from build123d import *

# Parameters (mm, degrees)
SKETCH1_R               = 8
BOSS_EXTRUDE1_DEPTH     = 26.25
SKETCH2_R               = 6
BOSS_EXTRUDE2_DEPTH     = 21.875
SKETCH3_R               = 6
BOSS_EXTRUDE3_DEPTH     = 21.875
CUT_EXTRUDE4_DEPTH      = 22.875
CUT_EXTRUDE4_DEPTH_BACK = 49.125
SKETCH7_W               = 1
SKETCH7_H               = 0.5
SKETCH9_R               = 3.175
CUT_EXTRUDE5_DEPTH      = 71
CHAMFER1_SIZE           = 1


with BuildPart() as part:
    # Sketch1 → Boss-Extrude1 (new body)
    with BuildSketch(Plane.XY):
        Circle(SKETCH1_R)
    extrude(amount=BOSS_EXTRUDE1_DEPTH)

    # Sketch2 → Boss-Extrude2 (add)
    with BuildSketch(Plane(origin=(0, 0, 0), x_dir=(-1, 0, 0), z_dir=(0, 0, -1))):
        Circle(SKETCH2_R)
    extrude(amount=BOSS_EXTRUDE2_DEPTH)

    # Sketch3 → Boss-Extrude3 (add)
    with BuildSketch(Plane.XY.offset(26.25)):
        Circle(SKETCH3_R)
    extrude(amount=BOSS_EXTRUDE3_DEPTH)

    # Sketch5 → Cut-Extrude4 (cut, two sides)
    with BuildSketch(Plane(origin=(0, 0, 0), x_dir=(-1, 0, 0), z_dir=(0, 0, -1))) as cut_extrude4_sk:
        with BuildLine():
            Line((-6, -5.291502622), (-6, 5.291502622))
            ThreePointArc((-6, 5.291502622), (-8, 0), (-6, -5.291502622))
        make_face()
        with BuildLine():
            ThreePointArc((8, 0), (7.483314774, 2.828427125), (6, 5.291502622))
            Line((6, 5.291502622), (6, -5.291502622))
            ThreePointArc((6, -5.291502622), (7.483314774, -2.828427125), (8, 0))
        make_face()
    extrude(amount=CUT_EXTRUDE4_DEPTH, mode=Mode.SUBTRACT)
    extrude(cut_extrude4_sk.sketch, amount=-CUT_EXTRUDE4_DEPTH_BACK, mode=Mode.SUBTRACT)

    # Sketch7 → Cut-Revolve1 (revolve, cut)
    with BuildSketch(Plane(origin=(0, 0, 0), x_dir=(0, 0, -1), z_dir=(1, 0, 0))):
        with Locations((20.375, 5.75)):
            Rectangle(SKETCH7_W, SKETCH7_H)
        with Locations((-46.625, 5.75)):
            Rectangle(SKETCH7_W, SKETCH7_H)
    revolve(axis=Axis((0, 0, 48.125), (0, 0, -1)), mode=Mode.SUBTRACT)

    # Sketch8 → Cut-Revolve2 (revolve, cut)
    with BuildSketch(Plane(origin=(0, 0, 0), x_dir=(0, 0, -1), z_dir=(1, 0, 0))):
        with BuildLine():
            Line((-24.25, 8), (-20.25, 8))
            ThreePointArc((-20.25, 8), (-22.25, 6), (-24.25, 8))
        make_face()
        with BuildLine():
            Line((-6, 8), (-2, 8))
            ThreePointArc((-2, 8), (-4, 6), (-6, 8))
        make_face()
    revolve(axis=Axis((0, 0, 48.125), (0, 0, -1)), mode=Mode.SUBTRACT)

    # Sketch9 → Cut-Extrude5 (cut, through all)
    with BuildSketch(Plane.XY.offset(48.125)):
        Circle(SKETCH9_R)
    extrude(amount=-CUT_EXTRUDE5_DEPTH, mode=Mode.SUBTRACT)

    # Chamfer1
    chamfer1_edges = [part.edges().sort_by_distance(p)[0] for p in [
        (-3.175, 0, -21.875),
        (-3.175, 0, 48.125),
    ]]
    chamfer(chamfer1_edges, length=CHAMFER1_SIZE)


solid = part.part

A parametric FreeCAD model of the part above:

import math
import FreeCAD as App
import Part
import Sketcher
Q = App.Units.Quantity


def edges_at(feature, points):
    """Names of the edges that pass closest to the given points."""
    edges = feature.Shape.Edges
    near = lambda p: min(range(len(edges)), key=lambda i: edges[i].distToShape(Part.Vertex(*p))[0])
    return sorted({f"Edge{near(p) + 1}" for p in points})


def add_polygon(sketch, points):
    """Adds a closed chain of lines whose ends are joined by coincident constraints."""
    first, n = sketch.GeometryCount, len(points)
    for a, b in zip(points, points[1:] + points[:1]):
        sketch.addGeometry(Part.LineSegment(App.Vector(*a, 0), App.Vector(*b, 0)), False)
    for i in range(n):
        sketch.addConstraint(Sketcher.Constraint("Coincident", first + i, 2, first + (i + 1) % n, 1))

doc = App.newDocument("Part")
body = doc.addObject("PartDesign::Body", "Body")

# Sketch on XY plane
sketch1 = body.newObject("Sketcher::SketchObject", "Sketch")
sketch1.AttachmentSupport = (doc.getObject("XY_Plane"), [""])
sketch1.MapMode = "FlatFace"
sketch1.addGeometry(Part.Circle(App.Vector(0, 0, 0), App.Vector(0, 0, 1), 8), False)
sketch1.addConstraint(Sketcher.Constraint("Coincident", 0, 3, -1, 1))
sketch1.addConstraint(Sketcher.Constraint("Diameter", 0, Q("16 mm")))
pad1 = body.newObject("PartDesign::Pad", "Pad")
pad1.Profile = sketch1
pad1.Length = 26.25

# Sketch on XY plane
sketch2 = body.newObject("Sketcher::SketchObject", "Sketch001")
sketch2.AttachmentSupport = (doc.getObject("XY_Plane"), [""])
sketch2.MapMode = "FlatFace"
sketch2.addGeometry(Part.Circle(App.Vector(0, 0, 0), App.Vector(0, 0, 1), 6), False)
sketch2.addConstraint(Sketcher.Constraint("Coincident", 0, 3, -1, 1))
sketch2.addConstraint(Sketcher.Constraint("Diameter", 0, Q("12 mm")))
pad2 = body.newObject("PartDesign::Pad", "Pad001")
pad2.Profile = sketch2
pad2.Length = 21.875
pad2.Reversed = True

# Sketch on XY plane
sketch3 = body.newObject("Sketcher::SketchObject", "Sketch002")
sketch3.AttachmentSupport = (doc.getObject("XY_Plane"), [""])
sketch3.MapMode = "FlatFace"
sketch3.AttachmentOffset = App.Placement(App.Vector(0, 0, 26.25), App.Rotation())
sketch3.addGeometry(Part.Circle(App.Vector(0, 0, 0), App.Vector(0, 0, 1), 6), False)
sketch3.addConstraint(Sketcher.Constraint("Coincident", 0, 3, -1, 1))
sketch3.addConstraint(Sketcher.Constraint("Diameter", 0, Q("12 mm")))
pad3 = body.newObject("PartDesign::Pad", "Pad002")
pad3.Profile = sketch3
pad3.Length = 21.875

# Sketch on XY plane
sketch4 = body.newObject("Sketcher::SketchObject", "Sketch003")
sketch4.AttachmentSupport = (doc.getObject("XY_Plane"), [""])
sketch4.MapMode = "FlatFace"
sketch4.addGeometry(Part.LineSegment(App.Vector(6, -5.291503, 0), App.Vector(6, 5.291503, 0)), False)
sketch4.addGeometry(Part.ArcOfCircle(Part.Circle(App.Vector(0, 0, 0), App.Vector(0, 0, 1), 8), math.radians(-41.409622), math.radians(41.409622)), False)
sketch4.addGeometry(Part.ArcOfCircle(Part.Circle(App.Vector(0, 0, 0), App.Vector(0, 0, 1), 8), math.radians(138.590378), math.radians(180)), False)
sketch4.addGeometry(Part.LineSegment(App.Vector(-6, 5.291503, 0), App.Vector(-6, -5.291503, 0)), False)
sketch4.addGeometry(Part.ArcOfCircle(Part.Circle(App.Vector(0, 0, 0), App.Vector(0, 0, 1), 8), math.radians(180), math.radians(221.409622)), False)
sketch4.addConstraint(Sketcher.Constraint("Coincident", 0, 1, 1, 1))
sketch4.addConstraint(Sketcher.Constraint("Coincident", 1, 2, 0, 2))
sketch4.addConstraint(Sketcher.Constraint("Coincident", 2, 1, 3, 1))
sketch4.addConstraint(Sketcher.Constraint("Coincident", 3, 2, 4, 2))
sketch4.addConstraint(Sketcher.Constraint("Tangent", 4, 1, 2, 2))
sketch4.addConstraint(Sketcher.Constraint("Vertical", 0))
sketch4.addConstraint(Sketcher.Constraint("Vertical", 3))
sketch4.addConstraint(Sketcher.Constraint("Coincident", 1, 3, -1, 1))
sketch4.addConstraint(Sketcher.Constraint("Coincident", 2, 3, -1, 1))
sketch4.addConstraint(Sketcher.Constraint("Equal", 1, 2))
sketch4.addConstraint(Sketcher.Constraint("Equal", 2, 4))
sketch4.addConstraint(Sketcher.Constraint("PointOnObject", 4, 1, -1))
sketch4.addConstraint(Sketcher.Constraint("Horizontal", 1, 2, 2, 1))
sketch4.addConstraint(Sketcher.Constraint("Radius", 1, Q("8 mm")))
sketch4.addConstraint(Sketcher.Constraint("DistanceX", -1, 1, 0, 1, Q("6 mm")))
pocket1 = body.newObject("PartDesign::Pocket", "Pocket")
pocket1.Profile = sketch4
pocket1.Type = "ThroughAll"
pocket1.Midplane = True

# Sketch on YZ plane
sketch5 = body.newObject("Sketcher::SketchObject", "Sketch004")
sketch5.AttachmentSupport = (doc.getObject("YZ_Plane"), [""])
sketch5.MapMode = "FlatFace"
add_polygon(sketch5, [(6, -19.875), (5.5, -19.875), (5.5, -20.875), (6, -20.875)])  # lines 0-3
add_polygon(sketch5, [(6, 47.125), (5.5, 47.125), (5.5, 46.125), (6, 46.125)])  # lines 4-7
sketch5.addConstraint(Sketcher.Constraint("Horizontal", 0))
sketch5.addConstraint(Sketcher.Constraint("Vertical", 1))
sketch5.addConstraint(Sketcher.Constraint("Horizontal", 2))
sketch5.addConstraint(Sketcher.Constraint("Vertical", 3))
sketch5.addConstraint(Sketcher.Constraint("Horizontal", 4))
sketch5.addConstraint(Sketcher.Constraint("Vertical", 5))
sketch5.addConstraint(Sketcher.Constraint("Horizontal", 6))
sketch5.addConstraint(Sketcher.Constraint("Vertical", 7))
sketch5.addConstraint(Sketcher.Constraint("Vertical", 1, 2, 4, 2))
sketch5.addConstraint(Sketcher.Constraint("Vertical", 3, 2, 6, 2))
sketch5.addConstraint(Sketcher.Constraint("Equal", 3, 5))
sketch5.addConstraint(Sketcher.Constraint("DistanceY", 1, 2, 1, 1, Q("1 mm")))
sketch5.addConstraint(Sketcher.Constraint("DistanceX", 0, 2, 0, 1, Q("0.5 mm")))
sketch5.addConstraint(Sketcher.Constraint("DistanceX", -1, 1, 2, 2, Q("6 mm")))
sketch5.addConstraint(Sketcher.Constraint("DistanceY", 0, 2, 4, 2, Q("67 mm")))
sketch5.addConstraint(Sketcher.Constraint("DistanceY", 0, 2, -1, 1, Q("19.875 mm")))
groove = body.newObject("PartDesign::Groove", "Groove")
groove.Profile = sketch5
groove.ReferenceAxis = (sketch5, ["V_Axis"])
groove.Angle = 360

# Sketch on YZ plane
sketch6 = body.newObject("Sketcher::SketchObject", "Sketch005")
sketch6.AttachmentSupport = (doc.getObject("YZ_Plane"), [""])
sketch6.MapMode = "FlatFace"
sketch6.addGeometry(Part.LineSegment(App.Vector(8, 20.25, 0), App.Vector(8, 24.25, 0)), False)
sketch6.addGeometry(Part.ArcOfCircle(Part.Circle(App.Vector(8, 22.25, 0), App.Vector(0, 0, 1), 2), math.radians(90), math.radians(270)), False)
sketch6.addGeometry(Part.LineSegment(App.Vector(8, 2, 0), App.Vector(8, 6, 0)), False)
sketch6.addGeometry(Part.ArcOfCircle(Part.Circle(App.Vector(8, 4, 0), App.Vector(0, 0, 1), 2), math.radians(90), math.radians(270)), False)
sketch6.addConstraint(Sketcher.Constraint("Coincident", 0, 1, 1, 2))
sketch6.addConstraint(Sketcher.Constraint("Coincident", 1, 1, 0, 2))
sketch6.addConstraint(Sketcher.Constraint("Coincident", 2, 1, 3, 2))
sketch6.addConstraint(Sketcher.Constraint("Coincident", 3, 1, 2, 2))
sketch6.addConstraint(Sketcher.Constraint("Vertical", 0))
sketch6.addConstraint(Sketcher.Constraint("Vertical", 2))
sketch6.addConstraint(Sketcher.Constraint("Equal", 1, 3))
sketch6.addConstraint(Sketcher.Constraint("Vertical", 1, 3, 3, 3))
sketch6.addConstraint(Sketcher.Constraint("Vertical", 3, 3, 0, 1))
sketch6.addConstraint(Sketcher.Constraint("Vertical", 1, 1, 2, 1))
sketch6.addConstraint(Sketcher.Constraint("Radius", 1, Q("2 mm")))
sketch6.addConstraint(Sketcher.Constraint("DistanceX", -1, 1, 1, 3, Q("8 mm")))
sketch6.addConstraint(Sketcher.Constraint("DistanceY", -1, 1, 3, 3, Q("4 mm")))
sketch6.addConstraint(Sketcher.Constraint("DistanceY", -1, 1, 1, 3, Q("22.25 mm")))
groove2 = body.newObject("PartDesign::Groove", "Groove001")
groove2.Profile = sketch6
groove2.ReferenceAxis = (sketch6, ["V_Axis"])
groove2.Angle = 360

# Sketch on XY plane
sketch7 = body.newObject("Sketcher::SketchObject", "Sketch006")
sketch7.AttachmentSupport = (doc.getObject("XY_Plane"), [""])
sketch7.MapMode = "FlatFace"
sketch7.AttachmentOffset = App.Placement(App.Vector(0, 0, 48.125), App.Rotation())
sketch7.addGeometry(Part.Circle(App.Vector(0, 0, 0), App.Vector(0, 0, 1), 3.175), False)
sketch7.addConstraint(Sketcher.Constraint("Coincident", 0, 3, -1, 1))
sketch7.addConstraint(Sketcher.Constraint("Diameter", 0, Q("6.35 mm")))
pocket2 = body.newObject("PartDesign::Pocket", "Pocket001")
pocket2.Profile = sketch7
pocket2.Type = "ThroughAll"
doc.recompute()

chamfer = body.newObject("PartDesign::Chamfer", "Chamfer")
chamfer.Base = (pocket2, edges_at(pocket2, [(-3.175, 0, -21.875), (-3.175, 0, 48.125)]))
chamfer.Size = 1

doc.recompute()
